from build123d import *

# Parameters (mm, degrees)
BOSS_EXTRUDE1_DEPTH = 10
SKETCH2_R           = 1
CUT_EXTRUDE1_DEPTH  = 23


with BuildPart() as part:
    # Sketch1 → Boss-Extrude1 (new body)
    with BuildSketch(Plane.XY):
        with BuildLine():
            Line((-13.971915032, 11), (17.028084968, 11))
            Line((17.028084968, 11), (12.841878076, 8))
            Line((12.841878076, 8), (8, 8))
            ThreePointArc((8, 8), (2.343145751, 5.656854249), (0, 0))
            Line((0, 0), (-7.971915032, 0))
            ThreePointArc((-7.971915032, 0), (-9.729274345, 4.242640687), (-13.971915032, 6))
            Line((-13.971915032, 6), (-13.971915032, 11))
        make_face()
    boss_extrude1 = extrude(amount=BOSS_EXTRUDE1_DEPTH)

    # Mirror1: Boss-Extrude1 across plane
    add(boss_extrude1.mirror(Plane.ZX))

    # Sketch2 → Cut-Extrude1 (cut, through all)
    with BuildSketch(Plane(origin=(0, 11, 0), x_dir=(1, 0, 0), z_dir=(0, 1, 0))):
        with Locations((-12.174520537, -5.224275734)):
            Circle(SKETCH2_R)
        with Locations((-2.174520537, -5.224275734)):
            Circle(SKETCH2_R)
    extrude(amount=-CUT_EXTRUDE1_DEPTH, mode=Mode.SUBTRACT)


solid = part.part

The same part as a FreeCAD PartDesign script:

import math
import FreeCAD as App
import Part
import Sketcher

V = App.Vector

doc = App.newDocument("Part")
body = doc.addObject("PartDesign::Body", "Body")

sketch1 = doc.addObject("Sketcher::SketchObject", "Sketch")
body.addObject(sketch1)
sketch1.AttachmentSupport = (doc.XY_Plane, [""])
sketch1.MapMode = "FlatFace"
sketch1.addGeometry([
    Part.LineSegment(V(17.028085, 11, 0), V(-13.971915, 11, 0)),
    Part.LineSegment(V(-13.971915, 11, 0), V(-13.971915, 6, 0)),
    Part.ArcOfCircle(Part.Circle(V(-13.971915, 0, 0), V(0, 0, 1), 6), math.radians(0), math.radians(90)),
    Part.LineSegment(V(-7.971915, 0, 0), V(0, 0, 0)),
    Part.ArcOfCircle(Part.Circle(V(8, 0, 0), V(0, 0, 1), 8), math.radians(90), math.radians(180)),
    Part.LineSegment(V(8, 8, 0), V(12.841878, 8, 0)),
    Part.LineSegment(V(12.841878, 8, 0), V(17.028085, 11, 0)),
], False)
sketch1.addConstraint([
    Sketcher.Constraint("Coincident", 0, 2, 1, 1),
    Sketcher.Constraint("Coincident", 1, 2, 2, 2),
    Sketcher.Constraint("Coincident", 2, 1, 3, 1),
    Sketcher.Constraint("Coincident", 3, 2, 4, 2),
    Sketcher.Constraint("Tangent", 4, 1, 5, 1),
    Sketcher.Constraint("Coincident", 5, 2, 6, 1),
    Sketcher.Constraint("Coincident", 6, 2, 0, 1),
    Sketcher.Constraint("Horizontal", 0),
    Sketcher.Constraint("Vertical", 1),
    Sketcher.Constraint("Horizontal", 3),
    Sketcher.Constraint("Horizontal", 5),
    Sketcher.Constraint("Coincident", 3, 2, -1, 1),
    Sketcher.Constraint("PointOnObject", 2, 3, -1),
    Sketcher.Constraint("PointOnObject", 4, 3, -1),
    Sketcher.Constraint("Vertical", 2, 3, 0, 2),
    Sketcher.Constraint("Radius", 2, 6.0),
    Sketcher.Constraint("Radius", 4, 8.0),
    Sketcher.Constraint("DistanceX", 0, 2, 0, 1, 31.0),
    Sketcher.Constraint("DistanceY", 1, 2, 1, 1, 5.0),
    Sketcher.Constraint("DistanceX", 5, 1, 5, 2, 4.841878),
    Sketcher.Constraint("DistanceX", 3, 1, 3, 2, 7.971915),
])
pad1 = doc.addObject("PartDesign::Pad", "Pad")
body.addObject(pad1)
pad1.Profile = sketch1
pad1.Length = 10
doc.recompute()

mirrored = doc.addObject("PartDesign::Mirrored", "Mirrored")
body.addObject(mirrored)
mirrored.Originals = [pad1]
mirrored.MirrorPlane = (doc.XZ_Plane, [""])
body.Tip = mirrored

sketch2 = doc.addObject("Sketcher::SketchObject", "Sketch001")
body.addObject(sketch2)
sketch2.AttachmentSupport = (doc.XZ_Plane, [""])
sketch2.MapMode = "FlatFace"
sketch2.AttachmentOffset = App.Placement(V(0, 0, -11), App.Rotation())
sketch2.addGeometry([
    Part.Circle(V(-12.174521, 5.224276, 0), V(0, 0, 1), 1),
    Part.Circle(V(-2.174521, 5.224276, 0), V(0, 0, 1), 1),
], False)
sketch2.addConstraint([
    Sketcher.Constraint("Equal", 0, 1),
    Sketcher.Constraint("Horizontal", 0, 3, 1, 3),
    Sketcher.Constraint("Diameter", 0, 2.0),
    Sketcher.Constraint("DistanceX", 0, 3, 1, 3, 10.0),
    Sketcher.Constraint("DistanceX", 0, 3, -1, 1, 12.174521),
    Sketcher.Constraint("DistanceY", -1, 1, 0, 3, 5.224276),
])
pocket1 = doc.addObject("PartDesign::Pocket", "Pocket")
body.addObject(pocket1)
pocket1.Profile = sketch2
pocket1.Type = "ThroughAll"
pocket1.Reversed = True

doc.recompute()
